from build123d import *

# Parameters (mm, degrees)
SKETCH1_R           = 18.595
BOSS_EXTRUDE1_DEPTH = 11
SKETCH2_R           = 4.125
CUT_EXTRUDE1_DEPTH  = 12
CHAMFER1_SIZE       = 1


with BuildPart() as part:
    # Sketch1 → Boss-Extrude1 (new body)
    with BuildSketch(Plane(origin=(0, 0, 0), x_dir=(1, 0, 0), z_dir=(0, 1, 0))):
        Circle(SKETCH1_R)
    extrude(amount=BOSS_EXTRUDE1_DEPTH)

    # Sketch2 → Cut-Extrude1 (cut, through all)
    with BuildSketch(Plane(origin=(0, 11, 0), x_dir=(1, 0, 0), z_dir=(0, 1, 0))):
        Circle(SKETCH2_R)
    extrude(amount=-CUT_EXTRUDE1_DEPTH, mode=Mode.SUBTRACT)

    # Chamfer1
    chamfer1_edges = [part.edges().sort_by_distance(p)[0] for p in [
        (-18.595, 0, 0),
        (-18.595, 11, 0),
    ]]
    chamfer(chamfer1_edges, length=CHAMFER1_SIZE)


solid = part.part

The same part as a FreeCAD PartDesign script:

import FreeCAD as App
import Part
import Sketcher

V = App.Vector
Q = App.Units.Quantity


def edges_at(feature, points):
    """Names of the edges that pass closest to the given points."""
    edges = feature.Shape.Edges
    near = lambda p: min(range(len(edges)), key=lambda i: edges[i].distToShape(Part.Vertex(*p))[0])
    return sorted({f"Edge{near(p) + 1}" for p in points})

doc = App.newDocument("Part")
body = doc.addObject("PartDesign::Body", "Body")

sketch1 = doc.addObject("Sketcher::SketchObject", "Sketch")
body.addObject(sketch1)
sketch1.AttachmentSupport = (doc.XZ_Plane, [""])
sketch1.MapMode = "FlatFace"
sketch1.addGeometry(Part.Circle(V(0, 0, 0), V(0, 0, 1), 19), False)
sketch1.addConstraint([
    Sketcher.Constraint("Coincident", 0, 3, -1, 1),
    Sketcher.Constraint("Diameter", 0, Q("37.19 mm")),
])
pad1 = doc.addObject("PartDesign::Pad", "Pad")
body.addObject(pad1)
pad1.Profile = sketch1
pad1.Length = 11
pad1.Reversed = True

sketch2 = doc.addObject("Sketcher::SketchObject", "Sketch001")
body.addObject(sketch2)
sketch2.AttachmentSupport = (doc.XZ_Plane, [""])
sketch2.MapMode = "FlatFace"
sketch2.AttachmentOffset = App.Placement(V(0, 0, -11), App.Rotation())
sketch2.addGeometry(Part.Circle(V(0, 0, 0), V(0, 0, 1), 4.1), False)
sketch2.addConstraint([
    Sketcher.Constraint("Coincident", 0, 3, -1, 1),
    Sketcher.Constraint("Diameter", 0, Q("8.25 mm")),
])
pocket1 = doc.addObject("PartDesign::Pocket", "Pocket")
body.addObject(pocket1)
pocket1.Profile = sketch2
pocket1.Type = "ThroughAll"
pocket1.Reversed = True
doc.recompute()

chamfer = doc.addObject("PartDesign::Chamfer", "Chamfer")
body.addObject(chamfer)
chamfer.Base = (pocket1, edges_at(pocket1, [(-18.595, 0, 0), (-18.595, 11, 0)]))
chamfer.Size = 1

doc.recompute()
